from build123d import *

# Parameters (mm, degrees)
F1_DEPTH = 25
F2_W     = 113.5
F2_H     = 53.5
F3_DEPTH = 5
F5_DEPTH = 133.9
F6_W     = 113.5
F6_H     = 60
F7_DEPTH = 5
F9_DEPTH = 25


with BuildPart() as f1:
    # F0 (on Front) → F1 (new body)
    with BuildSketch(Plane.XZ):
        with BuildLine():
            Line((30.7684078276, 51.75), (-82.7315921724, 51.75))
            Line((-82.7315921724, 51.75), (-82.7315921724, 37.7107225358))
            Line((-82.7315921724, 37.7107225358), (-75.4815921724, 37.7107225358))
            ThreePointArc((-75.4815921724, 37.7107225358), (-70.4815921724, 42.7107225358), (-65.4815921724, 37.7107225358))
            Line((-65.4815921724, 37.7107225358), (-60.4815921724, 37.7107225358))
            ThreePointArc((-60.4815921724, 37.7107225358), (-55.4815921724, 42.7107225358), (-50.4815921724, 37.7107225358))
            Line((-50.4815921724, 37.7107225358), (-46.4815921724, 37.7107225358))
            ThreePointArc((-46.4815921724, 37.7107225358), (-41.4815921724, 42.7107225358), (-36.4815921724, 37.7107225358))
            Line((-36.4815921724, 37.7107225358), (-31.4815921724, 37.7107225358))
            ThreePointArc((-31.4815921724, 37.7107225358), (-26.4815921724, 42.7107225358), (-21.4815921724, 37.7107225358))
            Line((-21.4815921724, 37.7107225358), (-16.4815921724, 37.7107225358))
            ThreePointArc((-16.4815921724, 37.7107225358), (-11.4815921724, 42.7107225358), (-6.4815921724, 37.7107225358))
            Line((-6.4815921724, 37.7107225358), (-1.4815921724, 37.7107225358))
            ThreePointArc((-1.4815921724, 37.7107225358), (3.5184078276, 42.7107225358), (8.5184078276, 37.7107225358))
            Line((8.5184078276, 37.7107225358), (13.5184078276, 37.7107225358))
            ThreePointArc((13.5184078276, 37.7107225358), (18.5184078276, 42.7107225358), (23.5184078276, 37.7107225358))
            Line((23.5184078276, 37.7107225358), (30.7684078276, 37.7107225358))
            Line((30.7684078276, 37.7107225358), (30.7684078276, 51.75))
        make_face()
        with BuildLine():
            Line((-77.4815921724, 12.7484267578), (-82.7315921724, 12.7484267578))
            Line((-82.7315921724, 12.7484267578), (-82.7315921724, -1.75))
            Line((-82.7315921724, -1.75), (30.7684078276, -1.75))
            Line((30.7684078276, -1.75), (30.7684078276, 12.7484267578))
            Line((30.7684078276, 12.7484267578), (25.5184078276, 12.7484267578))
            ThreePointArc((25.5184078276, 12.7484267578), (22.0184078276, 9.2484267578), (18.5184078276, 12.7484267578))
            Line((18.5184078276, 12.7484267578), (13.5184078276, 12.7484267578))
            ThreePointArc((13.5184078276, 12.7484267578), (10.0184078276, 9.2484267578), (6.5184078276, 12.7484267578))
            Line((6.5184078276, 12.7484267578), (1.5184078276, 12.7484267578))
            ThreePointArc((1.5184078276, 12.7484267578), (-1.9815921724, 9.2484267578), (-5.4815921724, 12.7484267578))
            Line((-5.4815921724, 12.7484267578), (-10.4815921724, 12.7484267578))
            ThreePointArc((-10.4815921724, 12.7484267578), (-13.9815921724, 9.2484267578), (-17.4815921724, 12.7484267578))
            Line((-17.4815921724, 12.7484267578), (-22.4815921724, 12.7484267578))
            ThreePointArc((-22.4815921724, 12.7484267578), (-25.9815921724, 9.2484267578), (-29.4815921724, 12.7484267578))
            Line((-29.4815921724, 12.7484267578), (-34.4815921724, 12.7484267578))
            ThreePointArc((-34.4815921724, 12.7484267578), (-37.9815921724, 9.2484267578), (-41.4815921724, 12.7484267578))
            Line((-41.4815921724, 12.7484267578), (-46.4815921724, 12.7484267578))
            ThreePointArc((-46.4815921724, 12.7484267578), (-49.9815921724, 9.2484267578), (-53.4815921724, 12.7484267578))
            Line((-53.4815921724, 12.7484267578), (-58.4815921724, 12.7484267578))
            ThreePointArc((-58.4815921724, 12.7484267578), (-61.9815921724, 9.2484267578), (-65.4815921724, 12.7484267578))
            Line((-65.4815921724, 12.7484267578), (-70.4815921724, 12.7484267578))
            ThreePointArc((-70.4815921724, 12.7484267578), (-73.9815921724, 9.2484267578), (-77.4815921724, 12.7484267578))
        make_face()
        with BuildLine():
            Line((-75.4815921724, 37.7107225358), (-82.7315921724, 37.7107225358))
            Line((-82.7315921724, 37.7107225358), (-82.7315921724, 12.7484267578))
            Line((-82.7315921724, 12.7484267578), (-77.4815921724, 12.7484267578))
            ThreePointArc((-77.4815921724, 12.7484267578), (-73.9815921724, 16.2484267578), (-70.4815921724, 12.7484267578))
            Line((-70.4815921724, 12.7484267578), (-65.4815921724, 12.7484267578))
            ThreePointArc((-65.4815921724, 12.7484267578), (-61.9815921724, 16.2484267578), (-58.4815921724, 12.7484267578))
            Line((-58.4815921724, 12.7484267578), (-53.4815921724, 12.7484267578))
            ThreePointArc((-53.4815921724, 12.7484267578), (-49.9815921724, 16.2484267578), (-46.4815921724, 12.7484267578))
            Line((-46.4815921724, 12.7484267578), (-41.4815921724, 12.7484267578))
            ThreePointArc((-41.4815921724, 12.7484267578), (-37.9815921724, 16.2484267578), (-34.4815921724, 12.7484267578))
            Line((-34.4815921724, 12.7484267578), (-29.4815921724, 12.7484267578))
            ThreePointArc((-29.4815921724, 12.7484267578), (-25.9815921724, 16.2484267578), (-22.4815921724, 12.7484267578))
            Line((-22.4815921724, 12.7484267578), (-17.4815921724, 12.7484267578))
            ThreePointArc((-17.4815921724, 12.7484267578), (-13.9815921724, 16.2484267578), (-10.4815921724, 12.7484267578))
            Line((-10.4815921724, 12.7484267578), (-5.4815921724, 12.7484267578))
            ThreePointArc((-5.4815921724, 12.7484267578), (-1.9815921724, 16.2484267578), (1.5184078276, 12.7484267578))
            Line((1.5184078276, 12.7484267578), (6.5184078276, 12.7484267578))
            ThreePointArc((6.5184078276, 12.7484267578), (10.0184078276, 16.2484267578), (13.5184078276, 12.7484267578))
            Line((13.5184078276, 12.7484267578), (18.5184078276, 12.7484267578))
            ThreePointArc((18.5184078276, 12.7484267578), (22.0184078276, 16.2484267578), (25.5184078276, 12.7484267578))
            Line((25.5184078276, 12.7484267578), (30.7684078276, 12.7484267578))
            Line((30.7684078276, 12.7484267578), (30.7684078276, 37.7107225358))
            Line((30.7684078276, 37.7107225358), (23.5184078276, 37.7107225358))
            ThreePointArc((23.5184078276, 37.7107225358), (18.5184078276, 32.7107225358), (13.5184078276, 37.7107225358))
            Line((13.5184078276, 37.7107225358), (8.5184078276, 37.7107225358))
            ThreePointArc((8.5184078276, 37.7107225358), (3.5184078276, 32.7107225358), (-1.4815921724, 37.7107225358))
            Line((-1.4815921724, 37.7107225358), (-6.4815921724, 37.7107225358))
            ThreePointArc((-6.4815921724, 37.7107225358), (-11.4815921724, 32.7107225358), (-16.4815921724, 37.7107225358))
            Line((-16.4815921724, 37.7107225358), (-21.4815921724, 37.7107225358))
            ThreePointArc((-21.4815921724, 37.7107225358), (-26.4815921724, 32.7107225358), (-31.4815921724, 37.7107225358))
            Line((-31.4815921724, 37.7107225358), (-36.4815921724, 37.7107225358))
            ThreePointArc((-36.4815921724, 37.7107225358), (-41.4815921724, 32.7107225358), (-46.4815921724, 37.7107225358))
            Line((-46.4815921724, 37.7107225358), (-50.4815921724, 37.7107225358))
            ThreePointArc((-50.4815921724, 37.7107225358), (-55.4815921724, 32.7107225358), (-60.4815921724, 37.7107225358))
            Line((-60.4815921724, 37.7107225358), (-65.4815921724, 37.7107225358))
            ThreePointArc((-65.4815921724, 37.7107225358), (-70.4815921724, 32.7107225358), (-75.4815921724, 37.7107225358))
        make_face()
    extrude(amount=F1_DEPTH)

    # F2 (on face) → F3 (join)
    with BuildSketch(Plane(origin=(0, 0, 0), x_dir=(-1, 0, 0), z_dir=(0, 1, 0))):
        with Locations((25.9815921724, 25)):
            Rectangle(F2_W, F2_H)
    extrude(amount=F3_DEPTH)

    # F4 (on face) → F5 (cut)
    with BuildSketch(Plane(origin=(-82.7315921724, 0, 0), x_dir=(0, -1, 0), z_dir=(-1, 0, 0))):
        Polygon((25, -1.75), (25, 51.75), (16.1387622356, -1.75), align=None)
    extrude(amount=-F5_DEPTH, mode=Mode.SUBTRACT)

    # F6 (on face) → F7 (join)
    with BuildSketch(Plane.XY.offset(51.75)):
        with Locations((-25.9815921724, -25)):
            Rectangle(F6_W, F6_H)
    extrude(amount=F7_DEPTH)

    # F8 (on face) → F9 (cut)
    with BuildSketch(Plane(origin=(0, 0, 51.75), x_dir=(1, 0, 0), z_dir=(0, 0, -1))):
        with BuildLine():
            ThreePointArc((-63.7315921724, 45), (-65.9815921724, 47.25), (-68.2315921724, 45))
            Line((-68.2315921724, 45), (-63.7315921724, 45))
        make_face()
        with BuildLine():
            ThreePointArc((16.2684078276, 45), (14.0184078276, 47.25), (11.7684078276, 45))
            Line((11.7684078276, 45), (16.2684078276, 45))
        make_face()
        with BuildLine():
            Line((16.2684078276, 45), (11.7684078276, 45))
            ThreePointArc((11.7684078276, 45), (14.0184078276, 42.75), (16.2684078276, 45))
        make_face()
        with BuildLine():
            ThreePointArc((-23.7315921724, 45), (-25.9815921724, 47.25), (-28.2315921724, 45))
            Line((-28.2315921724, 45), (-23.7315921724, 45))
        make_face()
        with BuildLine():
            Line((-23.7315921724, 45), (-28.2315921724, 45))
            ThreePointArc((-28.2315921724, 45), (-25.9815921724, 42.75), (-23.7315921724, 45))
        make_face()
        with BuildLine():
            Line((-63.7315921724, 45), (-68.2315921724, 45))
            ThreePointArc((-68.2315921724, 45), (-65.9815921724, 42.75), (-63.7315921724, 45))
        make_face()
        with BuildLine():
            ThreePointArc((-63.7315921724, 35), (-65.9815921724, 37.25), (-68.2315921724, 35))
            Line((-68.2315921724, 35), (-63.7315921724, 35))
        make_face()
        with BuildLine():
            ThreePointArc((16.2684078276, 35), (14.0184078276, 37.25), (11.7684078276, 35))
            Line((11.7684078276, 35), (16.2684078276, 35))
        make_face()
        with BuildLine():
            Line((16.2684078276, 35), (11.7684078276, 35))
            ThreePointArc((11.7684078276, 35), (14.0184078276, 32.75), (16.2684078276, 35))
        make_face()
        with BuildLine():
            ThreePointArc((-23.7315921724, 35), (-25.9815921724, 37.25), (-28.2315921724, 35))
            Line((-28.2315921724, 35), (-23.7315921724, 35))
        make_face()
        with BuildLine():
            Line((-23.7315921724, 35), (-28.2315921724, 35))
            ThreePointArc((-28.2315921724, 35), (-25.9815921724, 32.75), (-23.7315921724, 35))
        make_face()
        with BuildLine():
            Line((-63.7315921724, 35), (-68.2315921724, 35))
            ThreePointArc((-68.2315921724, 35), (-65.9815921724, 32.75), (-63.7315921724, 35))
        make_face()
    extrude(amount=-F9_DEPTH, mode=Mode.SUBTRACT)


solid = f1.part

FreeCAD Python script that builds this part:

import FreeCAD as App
import Part
import Sketcher
from FreeCAD import Vector


def add_polygon(sketch, points):
    """Adds a closed chain of lines whose ends are joined by coincident constraints."""
    first, n = sketch.GeometryCount, len(points)
    for a, b in zip(points, points[1:] + points[:1]):
        sketch.addGeometry(Part.LineSegment(App.Vector(*a, 0), App.Vector(*b, 0)), False)
    for i in range(n):
        sketch.addConstraint(Sketcher.Constraint("Coincident", first + i, 2, first + (i + 1) % n, 1))

doc = App.newDocument("Part")
body = doc.addObject("PartDesign::Body", "Body")

sketch1 = doc.addObject("Sketcher::SketchObject", "Sketch")
body.addObject(sketch1)
sketch1.AttachmentSupport = (doc.XZ_Plane, [""])
sketch1.MapMode = "FlatFace"
add_polygon(sketch1, [(30.768408, 51.75), (-82.731592, 51.75), (-82.731592, -1.75), (30.768408, -1.75)])
sketch1.addGeometry(Part.Circle(Vector(-70.481592, 37.710723, 0), Vector(0, 0, 1), 5), False)
sketch1.addGeometry(Part.Circle(Vector(-55.481592, 37.710723, 0), Vector(0, 0, 1), 5), False)
sketch1.addGeometry(Part.Circle(Vector(-41.481592, 37.710723, 0), Vector(0, 0, 1), 5), False)
sketch1.addGeometry(Part.Circle(Vector(-26.481592, 37.710723, 0), Vector(0, 0, 1), 5), False)
sketch1.addGeometry(Part.Circle(Vector(-11.481592, 37.710723, 0), Vector(0, 0, 1), 5), False)
sketch1.addGeometry(Part.Circle(Vector(3.518408, 37.710723, 0), Vector(0, 0, 1), 5), False)
sketch1.addGeometry(Part.Circle(Vector(18.518408, 37.710723, 0), Vector(0, 0, 1), 5), False)
sketch1.addGeometry(Part.Circle(Vector(-73.981592, 12.748427, 0), Vector(0, 0, 1), 3.5), False)
sketch1.addGeometry(Part.Circle(Vector(-61.981592, 12.748427, 0), Vector(0, 0, 1), 3.5), False)
sketch1.addGeometry(Part.Circle(Vector(-49.981592, 12.748427, 0), Vector(0, 0, 1), 3.5), False)
sketch1.addGeometry(Part.Circle(Vector(-37.981592, 12.748427, 0), Vector(0, 0, 1), 3.5), False)
sketch1.addGeometry(Part.Circle(Vector(-25.981592, 12.748427, 0), Vector(0, 0, 1), 3.5), False)
sketch1.addGeometry(Part.Circle(Vector(-13.981592, 12.748427, 0), Vector(0, 0, 1), 3.5), False)
sketch1.addGeometry(Part.Circle(Vector(-1.981592, 12.748427, 0), Vector(0, 0, 1), 3.5), False)
sketch1.addGeometry(Part.Circle(Vector(10.018408, 12.748427, 0), Vector(0, 0, 1), 3.5), False)
sketch1.addGeometry(Part.Circle(Vector(22.018408, 12.748427, 0), Vector(0, 0, 1), 3.5), False)
sketch1.addConstraint([
    Sketcher.Constraint("Horizontal", 0),
    Sketcher.Constraint("Vertical", 1),
    Sketcher.Constraint("Horizontal", 2),
    Sketcher.Constraint("Vertical", 3),
    Sketcher.Constraint("Equal", 4, 5),
    Sketcher.Constraint("Equal", 5, 6),
    Sketcher.Constraint("Equal", 6, 7),
    Sketcher.Constraint("Equal", 7, 8),
    Sketcher.Constraint("Equal", 8, 9),
    Sketcher.Constraint("Equal", 9, 10),
    Sketcher.Constraint("Equal", 11, 12),
    Sketcher.Constraint("Equal", 12, 13),
    Sketcher.Constraint("Equal", 13, 14),
    Sketcher.Constraint("Equal", 14, 15),
    Sketcher.Constraint("Equal", 15, 16),
    Sketcher.Constraint("Equal", 16, 17),
    Sketcher.Constraint("Equal", 17, 18),
    Sketcher.Constraint("Equal", 18, 19),
    Sketcher.Constraint("Horizontal", 4, 3, 5, 3),
    Sketcher.Constraint("Horizontal", 5, 3, 6, 3),
    Sketcher.Constraint("Horizontal", 6, 3, 7, 3),
    Sketcher.Constraint("Horizontal", 7, 3, 8, 3),
    Sketcher.Constraint("Horizontal", 8, 3, 9, 3),
    Sketcher.Constraint("Horizontal", 9, 3, 10, 3),
    Sketcher.Constraint("Horizontal", 11, 3, 12, 3),
    Sketcher.Constraint("Horizontal", 12, 3, 13, 3),
    Sketcher.Constraint("Horizontal", 13, 3, 14, 3),
    Sketcher.Constraint("Horizontal", 14, 3, 15, 3),
    Sketcher.Constraint("Horizontal", 15, 3, 16, 3),
    Sketcher.Constraint("Horizontal", 16, 3, 17, 3),
    Sketcher.Constraint("Horizontal", 17, 3, 18, 3),
    Sketcher.Constraint("Horizontal", 18, 3, 19, 3),
    Sketcher.Constraint("Diameter", 4, 10.0),
    Sketcher.Constraint("Diameter", 11, 7.0),
    Sketcher.Constraint("DistanceX", 0, 2, 0, 1, 113.5),
    Sketcher.Constraint("DistanceY", 1, 2, 1, 1, 53.5),
    Sketcher.Constraint("DistanceX", 4, 3, 5, 3, 15.0),
    Sketcher.Constraint("DistanceX", 5, 3, 6, 3, 14.0),
    Sketcher.Constraint("DistanceX", 6, 3, 7, 3, 15.0),
    Sketcher.Constraint("DistanceX", 7, 3, 8, 3, 15.0),
    Sketcher.Constraint("DistanceX", 8, 3, 9, 3, 15.0),
    Sketcher.Constraint("DistanceX", 9, 3, 10, 3, 15.0),
    Sketcher.Constraint("DistanceX", 11, 3, 12, 3, 12.0),
    Sketcher.Constraint("DistanceX", 12, 3, 13, 3, 12.0),
    Sketcher.Constraint("DistanceX", 13, 3, 14, 3, 12.0),
    Sketcher.Constraint("DistanceX", 14, 3, 15, 3, 12.0),
    Sketcher.Constraint("DistanceX", 15, 3, 16, 3, 12.0),
    Sketcher.Constraint("DistanceX", 16, 3, 17, 3, 12.0),
    Sketcher.Constraint("DistanceX", 17, 3, 18, 3, 12.0),
    Sketcher.Constraint("DistanceX", 18, 3, 19, 3, 12.0),
    Sketcher.Constraint("DistanceX", 11, 3, 4, 3, 3.5),
    Sketcher.Constraint("DistanceY", -1, 1, 0, 2, 51.75),
    Sketcher.Constraint("DistanceX", 0, 2, 4, 3, 12.25),
    Sketcher.Constraint("DistanceX", 4, 3, -1, 1, 70.481592),
    Sketcher.Constraint("DistanceY", -1, 1, 4, 3, 37.710723),
    Sketcher.Constraint("DistanceY", -1, 1, 11, 3, 12.748427),
])
pad1 = doc.addObject("PartDesign::Pad", "Pad")
body.addObject(pad1)
pad1.Profile = sketch1
pad1.Length = 25

sketch2 = doc.addObject("Sketcher::SketchObject", "Sketch001")
body.addObject(sketch2)
sketch2.AttachmentSupport = (doc.XZ_Plane, [""])
sketch2.MapMode = "FlatFace"
add_polygon(sketch2, [(30.768408, 51.75), (30.768408, -1.75), (-82.731592, -1.75), (-82.731592, 51.75)])
sketch2.addConstraint([
    Sketcher.Constraint("Vertical", 0),
    Sketcher.Constraint("Horizontal", 1),
    Sketcher.Constraint("Vertical", 2),
    Sketcher.Constraint("Horizontal", 3),
    Sketcher.Constraint("DistanceX", 1, 2, 1, 1, 113.5),
    Sketcher.Constraint("DistanceY", 0, 2, 0, 1, 53.5),
    Sketcher.Constraint("DistanceY", 0, 2, -1, 1, 1.75),
    Sketcher.Constraint("DistanceX", -1, 1, 0, 2, 30.768408),
])
pad2 = doc.addObject("PartDesign::Pad", "Pad001")
body.addObject(pad2)
pad2.Profile = sketch2
pad2.Length = 5
pad2.Reversed = True

sketch3 = doc.addObject("Sketcher::SketchObject", "Sketch002")
body.addObject(sketch3)
sketch3.AttachmentSupport = (doc.YZ_Plane, [""])
sketch3.MapMode = "FlatFace"
sketch3.AttachmentOffset = App.Placement(Vector(0, 0, -82.731592), App.Rotation())
add_polygon(sketch3, [(-25, -1.75), (-25, 51.75), (-16.138762, -1.75)])
sketch3.addConstraint([
    Sketcher.Constraint("Vertical", 0),
    Sketcher.Constraint("Horizontal", 2),
    Sketcher.Constraint("DistanceY", 0, 1, 0, 2, 53.5),
    Sketcher.Constraint("DistanceX", 0, 2, -1, 1, 25.0),
    Sketcher.Constraint("DistanceY", -1, 1, 0, 2, 51.75),
    Sketcher.Constraint("Distance", 1, 54.228881),
])
pocket1 = doc.addObject("PartDesign::Pocket", "Pocket")
body.addObject(pocket1)
pocket1.Profile = sketch3
pocket1.Length = 133.9
pocket1.Reversed = True

sketch4 = doc.addObject("Sketcher::SketchObject", "Sketch003")
body.addObject(sketch4)
sketch4.AttachmentSupport = (doc.XY_Plane, [""])
sketch4.MapMode = "FlatFace"
sketch4.AttachmentOffset = App.Placement(Vector(0, 0, 51.75), App.Rotation())
add_polygon(sketch4, [(-82.731592, 5), (-82.731592, -55), (30.768408, -55), (30.768408, 5)])
sketch4.addConstraint([
    Sketcher.Constraint("Vertical", 0),
    Sketcher.Constraint("Horizontal", 1),
    Sketcher.Constraint("Vertical", 2),
    Sketcher.Constraint("Horizontal", 3),
    Sketcher.Constraint("DistanceY", 0, 2, 0, 1, 60.0),
    Sketcher.Constraint("DistanceX", 1, 1, 1, 2, 113.5),
    Sketcher.Constraint("DistanceY", 0, 2, -1, 1, 55.0),
    Sketcher.Constraint("DistanceX", 0, 2, -1, 1, 82.731592),
])
pad3 = doc.addObject("PartDesign::Pad", "Pad002")
body.addObject(pad3)
pad3.Profile = sketch4
pad3.Length = 5

sketch5 = doc.addObject("Sketcher::SketchObject", "Sketch004")
body.addObject(sketch5)
sketch5.AttachmentSupport = (doc.XY_Plane, [""])
sketch5.MapMode = "FlatFace"
sketch5.AttachmentOffset = App.Placement(Vector(0, 0, 51.75), App.Rotation())
sketch5.addGeometry([
    Part.Circle(Vector(-65.981592, -45, 0), Vector(0, 0, 1), 2.25),
    Part.Circle(Vector(14.018408, -45, 0), Vector(0, 0, 1), 2.25),
    Part.Circle(Vector(-25.981592, -45, 0), Vector(0, 0, 1), 2.25),
    Part.Circle(Vector(-65.981592, -35, 0), Vector(0, 0, 1), 2.25),
    Part.Circle(Vector(14.018408, -35, 0), Vector(0, 0, 1), 2.25),
    Part.Circle(Vector(-25.981592, -35, 0), Vector(0, 0, 1), 2.25),
], False)
sketch5.addConstraint([
    Sketcher.Constraint("Equal", 0, 1),
    Sketcher.Constraint("Equal", 1, 2),
    Sketcher.Constraint("Equal", 2, 3),
    Sketcher.Constraint("Equal", 3, 4),
    Sketcher.Constraint("Equal", 4, 5),
    Sketcher.Constraint("Horizontal", 0, 3, 1, 3),
    Sketcher.Constraint("Horizontal", 1, 3, 2, 3),
    Sketcher.Constraint("Horizontal", 3, 3, 4, 3),
    Sketcher.Constraint("Horizontal", 4, 3, 5, 3),
    Sketcher.Constraint("Vertical", 0, 3, 3, 3),
    Sketcher.Constraint("Vertical", 1, 3, 4, 3),
    Sketcher.Constraint("Vertical", 2, 3, 5, 3),
    Sketcher.Constraint("Diameter", 0, 4.5),
    Sketcher.Constraint("DistanceY", 0, 3, -1, 1, 45.0),
    Sketcher.Constraint("DistanceY", 3, 3, -1, 1, 35.0),
    Sketcher.Constraint("DistanceX", 0, 3, 1, 3, 80.0),
    Sketcher.Constraint("DistanceX", 2, 3, 1, 3, 40.0),
    Sketcher.Constraint("DistanceX", 0, 3, -1, 1, 65.981592),
])
pocket2 = doc.addObject("PartDesign::Pocket", "Pocket001")
body.addObject(pocket2)
pocket2.Profile = sketch5
pocket2.Length = 25
pocket2.Reversed = True

doc.recompute()
